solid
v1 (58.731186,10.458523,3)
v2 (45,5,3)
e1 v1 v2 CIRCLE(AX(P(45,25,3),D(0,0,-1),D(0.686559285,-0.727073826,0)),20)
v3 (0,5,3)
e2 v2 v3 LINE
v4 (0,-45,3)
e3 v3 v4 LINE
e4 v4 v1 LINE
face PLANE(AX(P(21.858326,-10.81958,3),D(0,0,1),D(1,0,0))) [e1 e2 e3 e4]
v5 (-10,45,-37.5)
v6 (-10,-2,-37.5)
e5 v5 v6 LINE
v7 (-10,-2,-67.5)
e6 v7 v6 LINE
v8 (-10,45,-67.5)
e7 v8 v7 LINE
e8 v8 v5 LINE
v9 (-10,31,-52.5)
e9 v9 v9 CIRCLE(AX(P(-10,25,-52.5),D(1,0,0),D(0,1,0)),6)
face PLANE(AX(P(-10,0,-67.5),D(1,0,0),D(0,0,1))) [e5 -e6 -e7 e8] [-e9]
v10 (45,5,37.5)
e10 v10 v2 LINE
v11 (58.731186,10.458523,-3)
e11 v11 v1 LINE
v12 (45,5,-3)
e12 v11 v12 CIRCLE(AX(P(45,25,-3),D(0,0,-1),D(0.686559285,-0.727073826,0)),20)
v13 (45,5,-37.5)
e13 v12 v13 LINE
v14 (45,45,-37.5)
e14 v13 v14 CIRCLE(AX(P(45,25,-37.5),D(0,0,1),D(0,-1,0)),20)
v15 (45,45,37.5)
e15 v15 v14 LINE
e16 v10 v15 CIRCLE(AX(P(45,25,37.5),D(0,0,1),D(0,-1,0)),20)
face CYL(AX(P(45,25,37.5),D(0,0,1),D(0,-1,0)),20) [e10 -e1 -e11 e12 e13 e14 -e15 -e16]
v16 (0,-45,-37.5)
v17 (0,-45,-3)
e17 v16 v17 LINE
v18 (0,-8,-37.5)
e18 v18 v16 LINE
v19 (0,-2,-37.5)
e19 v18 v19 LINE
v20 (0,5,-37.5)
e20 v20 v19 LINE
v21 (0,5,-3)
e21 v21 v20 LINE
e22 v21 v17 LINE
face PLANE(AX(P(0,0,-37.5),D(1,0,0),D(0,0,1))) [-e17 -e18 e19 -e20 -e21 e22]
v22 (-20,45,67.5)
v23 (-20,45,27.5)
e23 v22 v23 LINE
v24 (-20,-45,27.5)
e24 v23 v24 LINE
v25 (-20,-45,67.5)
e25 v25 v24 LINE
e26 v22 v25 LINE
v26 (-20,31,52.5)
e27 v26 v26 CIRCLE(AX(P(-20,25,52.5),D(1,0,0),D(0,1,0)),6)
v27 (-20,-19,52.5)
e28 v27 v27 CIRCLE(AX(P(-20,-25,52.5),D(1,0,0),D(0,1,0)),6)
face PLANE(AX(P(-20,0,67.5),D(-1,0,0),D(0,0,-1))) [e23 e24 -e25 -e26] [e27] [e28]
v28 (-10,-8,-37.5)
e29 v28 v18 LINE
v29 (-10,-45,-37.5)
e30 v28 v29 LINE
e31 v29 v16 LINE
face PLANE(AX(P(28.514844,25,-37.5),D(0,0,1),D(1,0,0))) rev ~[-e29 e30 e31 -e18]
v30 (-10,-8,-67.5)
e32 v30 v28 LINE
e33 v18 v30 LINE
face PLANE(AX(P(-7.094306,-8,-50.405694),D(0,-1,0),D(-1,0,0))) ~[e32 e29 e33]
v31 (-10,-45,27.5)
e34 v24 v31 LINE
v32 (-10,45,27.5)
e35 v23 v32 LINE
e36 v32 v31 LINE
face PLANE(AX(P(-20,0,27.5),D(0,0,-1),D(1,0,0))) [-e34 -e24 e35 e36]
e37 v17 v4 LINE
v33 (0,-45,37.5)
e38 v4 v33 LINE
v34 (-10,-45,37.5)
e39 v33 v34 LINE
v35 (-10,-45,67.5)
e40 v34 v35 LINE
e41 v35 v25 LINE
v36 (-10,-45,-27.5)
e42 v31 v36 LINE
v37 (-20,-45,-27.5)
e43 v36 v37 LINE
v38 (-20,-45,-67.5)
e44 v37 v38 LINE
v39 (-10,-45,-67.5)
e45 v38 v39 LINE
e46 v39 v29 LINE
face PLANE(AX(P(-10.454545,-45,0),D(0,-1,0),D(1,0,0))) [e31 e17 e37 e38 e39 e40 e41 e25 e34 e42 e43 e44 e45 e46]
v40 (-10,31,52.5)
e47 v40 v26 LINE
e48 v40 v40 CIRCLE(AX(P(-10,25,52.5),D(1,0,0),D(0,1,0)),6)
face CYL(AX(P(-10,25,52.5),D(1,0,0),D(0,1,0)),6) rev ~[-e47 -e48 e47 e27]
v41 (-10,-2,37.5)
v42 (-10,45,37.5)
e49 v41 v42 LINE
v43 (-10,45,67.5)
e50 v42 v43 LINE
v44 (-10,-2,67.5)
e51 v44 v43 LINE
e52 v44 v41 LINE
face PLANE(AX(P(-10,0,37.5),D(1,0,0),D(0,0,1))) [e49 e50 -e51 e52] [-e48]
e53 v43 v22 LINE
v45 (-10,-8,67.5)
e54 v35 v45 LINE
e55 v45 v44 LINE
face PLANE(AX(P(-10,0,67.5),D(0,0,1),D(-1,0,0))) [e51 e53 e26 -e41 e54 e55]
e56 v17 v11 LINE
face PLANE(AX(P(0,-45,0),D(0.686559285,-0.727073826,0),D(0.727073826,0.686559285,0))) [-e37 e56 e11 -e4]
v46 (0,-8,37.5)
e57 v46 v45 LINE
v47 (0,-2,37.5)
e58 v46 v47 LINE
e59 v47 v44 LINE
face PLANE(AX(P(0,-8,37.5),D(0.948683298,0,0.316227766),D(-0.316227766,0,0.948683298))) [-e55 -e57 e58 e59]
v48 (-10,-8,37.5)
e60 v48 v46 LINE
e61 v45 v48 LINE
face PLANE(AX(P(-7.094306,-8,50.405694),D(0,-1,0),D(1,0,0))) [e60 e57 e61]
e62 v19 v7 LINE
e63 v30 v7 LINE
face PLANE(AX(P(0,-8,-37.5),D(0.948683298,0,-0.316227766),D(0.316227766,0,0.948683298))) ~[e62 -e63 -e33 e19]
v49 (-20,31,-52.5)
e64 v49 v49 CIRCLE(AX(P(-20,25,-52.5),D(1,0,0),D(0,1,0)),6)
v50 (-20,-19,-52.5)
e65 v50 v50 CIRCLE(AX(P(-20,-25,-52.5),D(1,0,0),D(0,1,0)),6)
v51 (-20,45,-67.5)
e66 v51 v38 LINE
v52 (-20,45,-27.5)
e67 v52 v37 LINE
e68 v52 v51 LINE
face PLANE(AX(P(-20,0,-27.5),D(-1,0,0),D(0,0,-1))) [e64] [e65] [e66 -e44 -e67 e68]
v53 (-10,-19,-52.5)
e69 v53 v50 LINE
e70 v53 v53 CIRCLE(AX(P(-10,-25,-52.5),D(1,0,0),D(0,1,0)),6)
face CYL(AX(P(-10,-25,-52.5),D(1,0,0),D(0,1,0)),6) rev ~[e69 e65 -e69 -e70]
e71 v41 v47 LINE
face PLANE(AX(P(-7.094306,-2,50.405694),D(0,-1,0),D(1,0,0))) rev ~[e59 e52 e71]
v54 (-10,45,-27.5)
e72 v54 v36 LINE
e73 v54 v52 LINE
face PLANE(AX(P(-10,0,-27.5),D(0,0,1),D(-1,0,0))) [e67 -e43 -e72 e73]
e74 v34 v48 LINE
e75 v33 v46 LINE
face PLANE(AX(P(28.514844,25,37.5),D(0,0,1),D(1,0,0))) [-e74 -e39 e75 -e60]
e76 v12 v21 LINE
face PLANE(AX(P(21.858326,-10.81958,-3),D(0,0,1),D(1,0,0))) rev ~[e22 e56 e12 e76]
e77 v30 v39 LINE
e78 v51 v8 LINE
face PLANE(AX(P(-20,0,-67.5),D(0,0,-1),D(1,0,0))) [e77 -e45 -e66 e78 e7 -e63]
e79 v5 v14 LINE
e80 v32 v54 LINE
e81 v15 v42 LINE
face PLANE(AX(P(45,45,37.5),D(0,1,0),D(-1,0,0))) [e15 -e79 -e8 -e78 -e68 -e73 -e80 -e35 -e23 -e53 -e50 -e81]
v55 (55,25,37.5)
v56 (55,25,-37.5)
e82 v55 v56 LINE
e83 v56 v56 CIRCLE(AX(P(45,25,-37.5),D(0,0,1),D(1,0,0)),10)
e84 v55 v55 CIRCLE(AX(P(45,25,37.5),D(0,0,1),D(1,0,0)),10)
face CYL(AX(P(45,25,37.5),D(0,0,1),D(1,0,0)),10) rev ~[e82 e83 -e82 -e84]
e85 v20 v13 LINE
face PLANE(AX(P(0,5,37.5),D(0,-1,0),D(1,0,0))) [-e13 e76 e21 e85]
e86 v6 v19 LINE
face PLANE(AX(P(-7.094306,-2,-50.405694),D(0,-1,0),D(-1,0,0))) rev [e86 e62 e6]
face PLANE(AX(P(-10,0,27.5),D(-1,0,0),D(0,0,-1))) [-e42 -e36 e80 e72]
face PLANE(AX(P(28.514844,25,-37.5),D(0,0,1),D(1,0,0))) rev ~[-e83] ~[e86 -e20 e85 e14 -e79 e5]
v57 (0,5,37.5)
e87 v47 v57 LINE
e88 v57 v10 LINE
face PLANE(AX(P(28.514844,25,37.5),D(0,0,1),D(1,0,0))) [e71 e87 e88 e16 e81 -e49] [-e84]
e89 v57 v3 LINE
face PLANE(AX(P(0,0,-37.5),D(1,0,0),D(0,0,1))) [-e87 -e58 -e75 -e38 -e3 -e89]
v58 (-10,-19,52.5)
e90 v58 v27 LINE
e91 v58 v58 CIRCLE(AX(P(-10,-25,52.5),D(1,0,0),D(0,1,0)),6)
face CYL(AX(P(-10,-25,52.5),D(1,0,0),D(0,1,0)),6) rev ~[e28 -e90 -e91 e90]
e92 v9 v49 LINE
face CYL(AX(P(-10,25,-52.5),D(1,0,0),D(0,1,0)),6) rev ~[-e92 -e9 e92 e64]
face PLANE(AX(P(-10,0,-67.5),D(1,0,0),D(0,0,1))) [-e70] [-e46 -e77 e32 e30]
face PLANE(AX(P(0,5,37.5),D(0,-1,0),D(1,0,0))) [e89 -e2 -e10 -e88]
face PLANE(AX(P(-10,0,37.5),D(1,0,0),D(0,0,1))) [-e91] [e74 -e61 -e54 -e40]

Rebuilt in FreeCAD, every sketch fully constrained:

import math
import FreeCAD as App
import Part
import Sketcher
from FreeCAD import Vector
Q = App.Units.Quantity

doc = App.newDocument("Part")
body = doc.addObject("PartDesign::Body", "Body")

# Sketch on XZ plane
sketch1 = doc.addObject("Sketcher::SketchObject", "Sketch")
body.addObject(sketch1)
sketch1.AttachmentSupport = (doc.XZ_Plane, [""])
sketch1.MapMode = "FlatFace"
sketch1.addGeometry([
    Part.LineSegment(Vector(-10, 68, 0), Vector(-20, 68, 0)),  # 0
    Part.LineSegment(Vector(-20, 68, 0), Vector(-20, 28, 0)),  # 1
    Part.LineSegment(Vector(-20, 28, 0), Vector(-10, 28, 0)),  # 2
    Part.LineSegment(Vector(-10, 28, 0), Vector(-10, -28, 0)),  # 3
    Part.LineSegment(Vector(-10, -28, 0), Vector(-20, -28, 0)),  # 4
    Part.LineSegment(Vector(-20, -28, 0), Vector(-20, -68, 0)),  # 5
    Part.LineSegment(Vector(-20, -68, 0), Vector(-10, -68, 0)),  # 6
    Part.LineSegment(Vector(-10, -68, 0), Vector(-10, -38, 0)),  # 7
    Part.LineSegment(Vector(-10, -38, 0), Vector(0, -38, 0)),  # 8
    Part.LineSegment(Vector(0, -38, 0), Vector(0, 38, 0)),  # 9
    Part.LineSegment(Vector(0, 38, 0), Vector(-10, 38, 0)),  # 10
    Part.LineSegment(Vector(-10, 38, 0), Vector(-10, 68, 0)),  # 11
], False)
sketch1.addConstraint([
    Sketcher.Constraint("Coincident", 0, 2, 1, 1),
    Sketcher.Constraint("Coincident", 1, 2, 2, 1),
    Sketcher.Constraint("Coincident", 2, 2, 3, 1),
    Sketcher.Constraint("Coincident", 3, 2, 4, 1),
    Sketcher.Constraint("Coincident", 4, 2, 5, 1),
    Sketcher.Constraint("Coincident", 5, 2, 6, 1),
    Sketcher.Constraint("Coincident", 6, 2, 7, 1),
    Sketcher.Constraint("Coincident", 7, 2, 8, 1),
    Sketcher.Constraint("Coincident", 8, 2, 9, 1),
    Sketcher.Constraint("Coincident", 9, 2, 10, 1),
    Sketcher.Constraint("Coincident", 10, 2, 11, 1),
    Sketcher.Constraint("Coincident", 11, 2, 0, 1),
    Sketcher.Constraint("Horizontal", 0),
    Sketcher.Constraint("Vertical", 1),
    Sketcher.Constraint("Horizontal", 2),
    Sketcher.Constraint("Vertical", 3),
    Sketcher.Constraint("Horizontal", 4),
    Sketcher.Constraint("Vertical", 5),
    Sketcher.Constraint("Horizontal", 6),
    Sketcher.Constraint("Vertical", 7),
    Sketcher.Constraint("Horizontal", 8),
    Sketcher.Constraint("Vertical", 9),
    Sketcher.Constraint("Horizontal", 10),
    Sketcher.Constraint("Vertical", 11),
    Sketcher.Constraint("Symmetric", 8, 2, 9, 2, -1, 1),
    Sketcher.Constraint("Symmetric", 1, 2, 4, 2, -1),
    Sketcher.Constraint("Symmetric", 6, 2, 11, 2, -1),
    Sketcher.Constraint("Vertical", 3, 2, 6, 2),
    Sketcher.Constraint("Equal", 6, 8),
    Sketcher.Constraint("DistanceX", 0, 2, 0, 1, Q("10 mm")),
    Sketcher.Constraint("DistanceY", 1, 2, 1, 1, Q("40 mm")),
    Sketcher.Constraint("DistanceY", 3, 2, 3, 1, Q("55 mm")),
    Sketcher.Constraint("DistanceY", 7, 1, 7, 2, Q("30 mm")),
])
pad1 = doc.addObject("PartDesign::Pad", "Pad")
body.addObject(pad1)
pad1.Profile = sketch1
pad1.Length = 90
pad1.Midplane = True

# Sketch on XY plane
sketch2 = doc.addObject("Sketcher::SketchObject", "Sketch001")
body.addObject(sketch2)
sketch2.AttachmentSupport = (doc.XY_Plane, [""])
sketch2.MapMode = "FlatFace"
sketch2.AttachmentOffset = App.Placement(Vector(0, 0, 37.5), App.Rotation())
sketch2.addGeometry([
    Part.LineSegment(Vector(0, 5, 0), Vector(45, 5, 0)),  # 0
    Part.ArcOfCircle(Part.Circle(Vector(45, 25, 0), Vector(0, 0, 1), 20), math.radians(-90), math.radians(90)),  # 1
    Part.LineSegment(Vector(45, 45, 0), Vector(0, 45, 0)),  # 2
    Part.LineSegment(Vector(0, 45, 0), Vector(0, 5, 0)),  # 3
    Part.Circle(Vector(45, 25, 0), Vector(0, 0, 1), 10),  # 4
], False)
sketch2.addConstraint([
    Sketcher.Constraint("Tangent", 0, 2, 1, 1),
    Sketcher.Constraint("Tangent", 1, 2, 2, 1),
    Sketcher.Constraint("Coincident", 2, 2, 3, 1),
    Sketcher.Constraint("Coincident", 3, 2, 0, 1),
    Sketcher.Constraint("Horizontal", 0),
    Sketcher.Constraint("Horizontal", 2),
    Sketcher.Constraint("Vertical", 3),
    Sketcher.Constraint("Coincident", 4, 3, 1, 3),
    Sketcher.Constraint("PointOnObject", 2, 2, -2),
    Sketcher.Constraint("Diameter", 4, Q("20 mm")),
    Sketcher.Constraint("Radius", 1, Q("20 mm")),
    Sketcher.Constraint("DistanceX", 0, 1, 0, 2, Q("45 mm")),
    Sketcher.Constraint("DistanceY", -1, 1, 1, 3, Q("25 mm")),
])
pad2 = doc.addObject("PartDesign::Pad", "Pad001")
body.addObject(pad2)
pad2.Profile = sketch2
pad2.Length = 75
pad2.Reversed = True

# Sketch on XY plane
sketch3 = doc.addObject("Sketcher::SketchObject", "Sketch002")
body.addObject(sketch3)
sketch3.AttachmentSupport = (doc.XY_Plane, [""])
sketch3.MapMode = "FlatFace"
sketch3.addGeometry([
    Part.LineSegment(Vector(0, 5, 0), Vector(0, -45, 0)),
    Part.LineSegment(Vector(0, -45, 0), Vector(59, 10, 0)),
    Part.ArcOfCircle(Part.Circle(Vector(45, 25, 0), Vector(0, 0, 1), 20), math.radians(-90), math.radians(-47)),
    Part.LineSegment(Vector(45, 5, 0), Vector(0, 5, 0)),
], False)
sketch3.addConstraint([
    Sketcher.Constraint("Coincident", 0, 2, 1, 1),
    Sketcher.Constraint("Tangent", 1, 2, 2, 2),
    Sketcher.Constraint("Tangent", 2, 1, 3, 1),
    Sketcher.Constraint("Coincident", 3, 2, 0, 1),
    Sketcher.Constraint("Vertical", 0),
    Sketcher.Constraint("Horizontal", 3),
    Sketcher.Constraint("PointOnObject", 0, 2, -2),
    Sketcher.Constraint("Radius", 2, Q("20 mm")),
    Sketcher.Constraint("DistanceX", 3, 2, 3, 1, Q("45 mm")),
    Sketcher.Constraint("DistanceY", 0, 2, 0, 1, Q("50 mm")),
    Sketcher.Constraint("DistanceY", -1, 1, 2, 3, Q("25 mm")),
])
pad3 = doc.addObject("PartDesign::Pad", "Pad002")
body.addObject(pad3)
pad3.Profile = sketch3
pad3.Length = 6
pad3.Midplane = True

# Sketch on XZ plane
sketch4 = doc.addObject("Sketcher::SketchObject", "Sketch003")
body.addObject(sketch4)
sketch4.AttachmentSupport = (doc.XZ_Plane, [""])
sketch4.MapMode = "FlatFace"
sketch4.AttachmentOffset = App.Placement(Vector(0, 0, 8), App.Rotation())
sketch4.addGeometry([
    Part.LineSegment(Vector(0, 38, 0), Vector(-10, 68, 0)),
    Part.LineSegment(Vector(-10, 68, 0), Vector(-10, 38, 0)),
    Part.LineSegment(Vector(-10, 38, 0), Vector(0, 38, 0)),
], False)
sketch4.addConstraint([
    Sketcher.Constraint("Coincident", 0, 2, 1, 1),
    Sketcher.Constraint("Coincident", 1, 2, 2, 1),
    Sketcher.Constraint("Coincident", 2, 2, 0, 1),
    Sketcher.Constraint("Vertical", 1),
    Sketcher.Constraint("Horizontal", 2),
    Sketcher.Constraint("PointOnObject", 2, 2, -2),
    Sketcher.Constraint("DistanceX", 2, 1, 2, 2, Q("10 mm")),
    Sketcher.Constraint("DistanceY", 1, 2, 1, 1, Q("30 mm")),
    Sketcher.Constraint("DistanceY", -1, 1, 0, 2, Q("67.5 mm")),
])
pad4 = doc.addObject("PartDesign::Pad", "Pad003")
body.addObject(pad4)
pad4.Profile = sketch4
pad4.Length = 6
pad4.Reversed = True
body2 = doc.addObject("PartDesign::Body", "Body001")
doc.recompute()

body2.BaseFeature = body
doc.recompute()

mirroring = doc.addObject("Part::Mirroring", "Mirroring")
mirroring.Source = body
mirroring.Base = Vector(0, 0, 0)
mirroring.Normal = Vector(0, 0, 1)
body3 = doc.addObject("PartDesign::Body", "Body002")
body3.BaseFeature = mirroring
boolean = doc.addObject("PartDesign::Boolean", "Boolean")
body2.addObject(boolean)
boolean.Type = "Fuse"
boolean.addObjects([body3])
doc.recompute()

# Sketch on YZ plane
sketch5 = doc.addObject("Sketcher::SketchObject", "Sketch004")
body2.addObject(sketch5)
sketch5.AttachmentSupport = (doc.getObject("YZ_Plane001"), [""])
sketch5.MapMode = "FlatFace"
sketch5.AttachmentOffset = App.Placement(Vector(0, 0, -10), App.Rotation())
sketch5.addGeometry([
    Part.Circle(Vector(-25, 52, 0), Vector(0, 0, 1), 6),
    Part.Circle(Vector(25, 52, 0), Vector(0, 0, 1), 6),
    Part.Circle(Vector(-25, -52, 0), Vector(0, 0, 1), 6),
    Part.Circle(Vector(25, -52, 0), Vector(0, 0, 1), 6),
], False)
sketch5.addConstraint([
    Sketcher.Constraint("Equal", 0, 1),
    Sketcher.Constraint("Equal", 1, 2),
    Sketcher.Constraint("Equal", 2, 3),
    Sketcher.Constraint("Symmetric", 1, 3, 2, 3, -1, 1),
    Sketcher.Constraint("Symmetric", 0, 3, 3, 3, -1, 1),
    Sketcher.Constraint("Symmetric", 0, 3, 1, 3, -2),
    Sketcher.Constraint("Diameter", 0, Q("12 mm")),
    Sketcher.Constraint("DistanceX", 0, 3, -1, 1, Q("25 mm")),
    Sketcher.Constraint("DistanceY", 2, 3, 0, 3, Q("105 mm")),
])
pocket1 = doc.addObject("PartDesign::Pocket", "Pocket")
body2.addObject(pocket1)
pocket1.Profile = sketch5
pocket1.Type = "ThroughAll"
mirroring.Visibility = False

doc.recompute()
